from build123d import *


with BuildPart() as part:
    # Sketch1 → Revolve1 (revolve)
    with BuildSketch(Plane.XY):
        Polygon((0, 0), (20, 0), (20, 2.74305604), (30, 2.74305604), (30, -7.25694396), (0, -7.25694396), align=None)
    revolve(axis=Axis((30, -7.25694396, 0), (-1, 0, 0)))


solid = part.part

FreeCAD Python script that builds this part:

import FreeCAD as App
import Part
import Sketcher
from FreeCAD import Vector

doc = App.newDocument("Part")
body = doc.addObject("PartDesign::Body", "Body")

sketch1 = doc.addObject("Sketcher::SketchObject", "Sketch")
body.addObject(sketch1)
sketch1.AttachmentSupport = (doc.XY_Plane, [""])
sketch1.MapMode = "FlatFace"
sketch1.addGeometry(Part.LineSegment(Vector(20, 0, 0), Vector(0, 0, 0)), False)
sketch1.addGeometry(Part.LineSegment(Vector(0, 0, 0), Vector(0, -7.3, 0)), False)
sketch1.addGeometry(Part.LineSegment(Vector(0, -7.3, 0), Vector(30, -7.3, 0)), False)
sketch1.addGeometry(Part.LineSegment(Vector(30, -7.3, 0), Vector(30, 2.7, 0)), False)
sketch1.addGeometry(Part.LineSegment(Vector(30, 2.7, 0), Vector(20, 2.7, 0)), False)
sketch1.addGeometry(Part.LineSegment(Vector(20, 2.7, 0), Vector(20, 0, 0)), False)
sketch1.addGeometry(Part.LineSegment(Vector(30, -7.3, 0), Vector(0, -7.3, 0)), True)
sketch1.addConstraint(Sketcher.Constraint("Coincident", 0, 2, 1, 1))
sketch1.addConstraint(Sketcher.Constraint("Coincident", 1, 2, 2, 1))
sketch1.addConstraint(Sketcher.Constraint("Coincident", 2, 2, 3, 1))
sketch1.addConstraint(Sketcher.Constraint("Coincident", 3, 2, 4, 1))
sketch1.addConstraint(Sketcher.Constraint("Coincident", 4, 2, 5, 1))
sketch1.addConstraint(Sketcher.Constraint("Coincident", 5, 2, 0, 1))
sketch1.addConstraint(Sketcher.Constraint("Horizontal", 0))
sketch1.addConstraint(Sketcher.Constraint("Vertical", 1))
sketch1.addConstraint(Sketcher.Constraint("Horizontal", 2))
sketch1.addConstraint(Sketcher.Constraint("Vertical", 3))
sketch1.addConstraint(Sketcher.Constraint("Horizontal", 4))
sketch1.addConstraint(Sketcher.Constraint("Vertical", 5))
sketch1.addConstraint(Sketcher.Constraint("Horizontal", 6))
sketch1.addConstraint(Sketcher.Constraint("Coincident", 0, 2, -1, 1))
sketch1.addConstraint(Sketcher.Constraint("Coincident", 6, 1, 2, 2))
sketch1.addConstraint(Sketcher.Constraint("PointOnObject", 6, 2, -2))
sketch1.addConstraint(Sketcher.Constraint("Equal", 4, 3))
sketch1.addConstraint(Sketcher.Constraint("DistanceX", 0, 2, 0, 1, 20.0))
sketch1.addConstraint(Sketcher.Constraint("DistanceX", 2, 1, 2, 2, 30.0))
sketch1.addConstraint(Sketcher.Constraint("DistanceY", 1, 2, 1, 1, 7.256944))
revolution = doc.addObject("PartDesign::Revolution", "Revolution")
body.addObject(revolution)
revolution.Profile = sketch1
revolution.ReferenceAxis = (sketch1, ["Axis0"])
revolution.Angle = 360

doc.recompute()
